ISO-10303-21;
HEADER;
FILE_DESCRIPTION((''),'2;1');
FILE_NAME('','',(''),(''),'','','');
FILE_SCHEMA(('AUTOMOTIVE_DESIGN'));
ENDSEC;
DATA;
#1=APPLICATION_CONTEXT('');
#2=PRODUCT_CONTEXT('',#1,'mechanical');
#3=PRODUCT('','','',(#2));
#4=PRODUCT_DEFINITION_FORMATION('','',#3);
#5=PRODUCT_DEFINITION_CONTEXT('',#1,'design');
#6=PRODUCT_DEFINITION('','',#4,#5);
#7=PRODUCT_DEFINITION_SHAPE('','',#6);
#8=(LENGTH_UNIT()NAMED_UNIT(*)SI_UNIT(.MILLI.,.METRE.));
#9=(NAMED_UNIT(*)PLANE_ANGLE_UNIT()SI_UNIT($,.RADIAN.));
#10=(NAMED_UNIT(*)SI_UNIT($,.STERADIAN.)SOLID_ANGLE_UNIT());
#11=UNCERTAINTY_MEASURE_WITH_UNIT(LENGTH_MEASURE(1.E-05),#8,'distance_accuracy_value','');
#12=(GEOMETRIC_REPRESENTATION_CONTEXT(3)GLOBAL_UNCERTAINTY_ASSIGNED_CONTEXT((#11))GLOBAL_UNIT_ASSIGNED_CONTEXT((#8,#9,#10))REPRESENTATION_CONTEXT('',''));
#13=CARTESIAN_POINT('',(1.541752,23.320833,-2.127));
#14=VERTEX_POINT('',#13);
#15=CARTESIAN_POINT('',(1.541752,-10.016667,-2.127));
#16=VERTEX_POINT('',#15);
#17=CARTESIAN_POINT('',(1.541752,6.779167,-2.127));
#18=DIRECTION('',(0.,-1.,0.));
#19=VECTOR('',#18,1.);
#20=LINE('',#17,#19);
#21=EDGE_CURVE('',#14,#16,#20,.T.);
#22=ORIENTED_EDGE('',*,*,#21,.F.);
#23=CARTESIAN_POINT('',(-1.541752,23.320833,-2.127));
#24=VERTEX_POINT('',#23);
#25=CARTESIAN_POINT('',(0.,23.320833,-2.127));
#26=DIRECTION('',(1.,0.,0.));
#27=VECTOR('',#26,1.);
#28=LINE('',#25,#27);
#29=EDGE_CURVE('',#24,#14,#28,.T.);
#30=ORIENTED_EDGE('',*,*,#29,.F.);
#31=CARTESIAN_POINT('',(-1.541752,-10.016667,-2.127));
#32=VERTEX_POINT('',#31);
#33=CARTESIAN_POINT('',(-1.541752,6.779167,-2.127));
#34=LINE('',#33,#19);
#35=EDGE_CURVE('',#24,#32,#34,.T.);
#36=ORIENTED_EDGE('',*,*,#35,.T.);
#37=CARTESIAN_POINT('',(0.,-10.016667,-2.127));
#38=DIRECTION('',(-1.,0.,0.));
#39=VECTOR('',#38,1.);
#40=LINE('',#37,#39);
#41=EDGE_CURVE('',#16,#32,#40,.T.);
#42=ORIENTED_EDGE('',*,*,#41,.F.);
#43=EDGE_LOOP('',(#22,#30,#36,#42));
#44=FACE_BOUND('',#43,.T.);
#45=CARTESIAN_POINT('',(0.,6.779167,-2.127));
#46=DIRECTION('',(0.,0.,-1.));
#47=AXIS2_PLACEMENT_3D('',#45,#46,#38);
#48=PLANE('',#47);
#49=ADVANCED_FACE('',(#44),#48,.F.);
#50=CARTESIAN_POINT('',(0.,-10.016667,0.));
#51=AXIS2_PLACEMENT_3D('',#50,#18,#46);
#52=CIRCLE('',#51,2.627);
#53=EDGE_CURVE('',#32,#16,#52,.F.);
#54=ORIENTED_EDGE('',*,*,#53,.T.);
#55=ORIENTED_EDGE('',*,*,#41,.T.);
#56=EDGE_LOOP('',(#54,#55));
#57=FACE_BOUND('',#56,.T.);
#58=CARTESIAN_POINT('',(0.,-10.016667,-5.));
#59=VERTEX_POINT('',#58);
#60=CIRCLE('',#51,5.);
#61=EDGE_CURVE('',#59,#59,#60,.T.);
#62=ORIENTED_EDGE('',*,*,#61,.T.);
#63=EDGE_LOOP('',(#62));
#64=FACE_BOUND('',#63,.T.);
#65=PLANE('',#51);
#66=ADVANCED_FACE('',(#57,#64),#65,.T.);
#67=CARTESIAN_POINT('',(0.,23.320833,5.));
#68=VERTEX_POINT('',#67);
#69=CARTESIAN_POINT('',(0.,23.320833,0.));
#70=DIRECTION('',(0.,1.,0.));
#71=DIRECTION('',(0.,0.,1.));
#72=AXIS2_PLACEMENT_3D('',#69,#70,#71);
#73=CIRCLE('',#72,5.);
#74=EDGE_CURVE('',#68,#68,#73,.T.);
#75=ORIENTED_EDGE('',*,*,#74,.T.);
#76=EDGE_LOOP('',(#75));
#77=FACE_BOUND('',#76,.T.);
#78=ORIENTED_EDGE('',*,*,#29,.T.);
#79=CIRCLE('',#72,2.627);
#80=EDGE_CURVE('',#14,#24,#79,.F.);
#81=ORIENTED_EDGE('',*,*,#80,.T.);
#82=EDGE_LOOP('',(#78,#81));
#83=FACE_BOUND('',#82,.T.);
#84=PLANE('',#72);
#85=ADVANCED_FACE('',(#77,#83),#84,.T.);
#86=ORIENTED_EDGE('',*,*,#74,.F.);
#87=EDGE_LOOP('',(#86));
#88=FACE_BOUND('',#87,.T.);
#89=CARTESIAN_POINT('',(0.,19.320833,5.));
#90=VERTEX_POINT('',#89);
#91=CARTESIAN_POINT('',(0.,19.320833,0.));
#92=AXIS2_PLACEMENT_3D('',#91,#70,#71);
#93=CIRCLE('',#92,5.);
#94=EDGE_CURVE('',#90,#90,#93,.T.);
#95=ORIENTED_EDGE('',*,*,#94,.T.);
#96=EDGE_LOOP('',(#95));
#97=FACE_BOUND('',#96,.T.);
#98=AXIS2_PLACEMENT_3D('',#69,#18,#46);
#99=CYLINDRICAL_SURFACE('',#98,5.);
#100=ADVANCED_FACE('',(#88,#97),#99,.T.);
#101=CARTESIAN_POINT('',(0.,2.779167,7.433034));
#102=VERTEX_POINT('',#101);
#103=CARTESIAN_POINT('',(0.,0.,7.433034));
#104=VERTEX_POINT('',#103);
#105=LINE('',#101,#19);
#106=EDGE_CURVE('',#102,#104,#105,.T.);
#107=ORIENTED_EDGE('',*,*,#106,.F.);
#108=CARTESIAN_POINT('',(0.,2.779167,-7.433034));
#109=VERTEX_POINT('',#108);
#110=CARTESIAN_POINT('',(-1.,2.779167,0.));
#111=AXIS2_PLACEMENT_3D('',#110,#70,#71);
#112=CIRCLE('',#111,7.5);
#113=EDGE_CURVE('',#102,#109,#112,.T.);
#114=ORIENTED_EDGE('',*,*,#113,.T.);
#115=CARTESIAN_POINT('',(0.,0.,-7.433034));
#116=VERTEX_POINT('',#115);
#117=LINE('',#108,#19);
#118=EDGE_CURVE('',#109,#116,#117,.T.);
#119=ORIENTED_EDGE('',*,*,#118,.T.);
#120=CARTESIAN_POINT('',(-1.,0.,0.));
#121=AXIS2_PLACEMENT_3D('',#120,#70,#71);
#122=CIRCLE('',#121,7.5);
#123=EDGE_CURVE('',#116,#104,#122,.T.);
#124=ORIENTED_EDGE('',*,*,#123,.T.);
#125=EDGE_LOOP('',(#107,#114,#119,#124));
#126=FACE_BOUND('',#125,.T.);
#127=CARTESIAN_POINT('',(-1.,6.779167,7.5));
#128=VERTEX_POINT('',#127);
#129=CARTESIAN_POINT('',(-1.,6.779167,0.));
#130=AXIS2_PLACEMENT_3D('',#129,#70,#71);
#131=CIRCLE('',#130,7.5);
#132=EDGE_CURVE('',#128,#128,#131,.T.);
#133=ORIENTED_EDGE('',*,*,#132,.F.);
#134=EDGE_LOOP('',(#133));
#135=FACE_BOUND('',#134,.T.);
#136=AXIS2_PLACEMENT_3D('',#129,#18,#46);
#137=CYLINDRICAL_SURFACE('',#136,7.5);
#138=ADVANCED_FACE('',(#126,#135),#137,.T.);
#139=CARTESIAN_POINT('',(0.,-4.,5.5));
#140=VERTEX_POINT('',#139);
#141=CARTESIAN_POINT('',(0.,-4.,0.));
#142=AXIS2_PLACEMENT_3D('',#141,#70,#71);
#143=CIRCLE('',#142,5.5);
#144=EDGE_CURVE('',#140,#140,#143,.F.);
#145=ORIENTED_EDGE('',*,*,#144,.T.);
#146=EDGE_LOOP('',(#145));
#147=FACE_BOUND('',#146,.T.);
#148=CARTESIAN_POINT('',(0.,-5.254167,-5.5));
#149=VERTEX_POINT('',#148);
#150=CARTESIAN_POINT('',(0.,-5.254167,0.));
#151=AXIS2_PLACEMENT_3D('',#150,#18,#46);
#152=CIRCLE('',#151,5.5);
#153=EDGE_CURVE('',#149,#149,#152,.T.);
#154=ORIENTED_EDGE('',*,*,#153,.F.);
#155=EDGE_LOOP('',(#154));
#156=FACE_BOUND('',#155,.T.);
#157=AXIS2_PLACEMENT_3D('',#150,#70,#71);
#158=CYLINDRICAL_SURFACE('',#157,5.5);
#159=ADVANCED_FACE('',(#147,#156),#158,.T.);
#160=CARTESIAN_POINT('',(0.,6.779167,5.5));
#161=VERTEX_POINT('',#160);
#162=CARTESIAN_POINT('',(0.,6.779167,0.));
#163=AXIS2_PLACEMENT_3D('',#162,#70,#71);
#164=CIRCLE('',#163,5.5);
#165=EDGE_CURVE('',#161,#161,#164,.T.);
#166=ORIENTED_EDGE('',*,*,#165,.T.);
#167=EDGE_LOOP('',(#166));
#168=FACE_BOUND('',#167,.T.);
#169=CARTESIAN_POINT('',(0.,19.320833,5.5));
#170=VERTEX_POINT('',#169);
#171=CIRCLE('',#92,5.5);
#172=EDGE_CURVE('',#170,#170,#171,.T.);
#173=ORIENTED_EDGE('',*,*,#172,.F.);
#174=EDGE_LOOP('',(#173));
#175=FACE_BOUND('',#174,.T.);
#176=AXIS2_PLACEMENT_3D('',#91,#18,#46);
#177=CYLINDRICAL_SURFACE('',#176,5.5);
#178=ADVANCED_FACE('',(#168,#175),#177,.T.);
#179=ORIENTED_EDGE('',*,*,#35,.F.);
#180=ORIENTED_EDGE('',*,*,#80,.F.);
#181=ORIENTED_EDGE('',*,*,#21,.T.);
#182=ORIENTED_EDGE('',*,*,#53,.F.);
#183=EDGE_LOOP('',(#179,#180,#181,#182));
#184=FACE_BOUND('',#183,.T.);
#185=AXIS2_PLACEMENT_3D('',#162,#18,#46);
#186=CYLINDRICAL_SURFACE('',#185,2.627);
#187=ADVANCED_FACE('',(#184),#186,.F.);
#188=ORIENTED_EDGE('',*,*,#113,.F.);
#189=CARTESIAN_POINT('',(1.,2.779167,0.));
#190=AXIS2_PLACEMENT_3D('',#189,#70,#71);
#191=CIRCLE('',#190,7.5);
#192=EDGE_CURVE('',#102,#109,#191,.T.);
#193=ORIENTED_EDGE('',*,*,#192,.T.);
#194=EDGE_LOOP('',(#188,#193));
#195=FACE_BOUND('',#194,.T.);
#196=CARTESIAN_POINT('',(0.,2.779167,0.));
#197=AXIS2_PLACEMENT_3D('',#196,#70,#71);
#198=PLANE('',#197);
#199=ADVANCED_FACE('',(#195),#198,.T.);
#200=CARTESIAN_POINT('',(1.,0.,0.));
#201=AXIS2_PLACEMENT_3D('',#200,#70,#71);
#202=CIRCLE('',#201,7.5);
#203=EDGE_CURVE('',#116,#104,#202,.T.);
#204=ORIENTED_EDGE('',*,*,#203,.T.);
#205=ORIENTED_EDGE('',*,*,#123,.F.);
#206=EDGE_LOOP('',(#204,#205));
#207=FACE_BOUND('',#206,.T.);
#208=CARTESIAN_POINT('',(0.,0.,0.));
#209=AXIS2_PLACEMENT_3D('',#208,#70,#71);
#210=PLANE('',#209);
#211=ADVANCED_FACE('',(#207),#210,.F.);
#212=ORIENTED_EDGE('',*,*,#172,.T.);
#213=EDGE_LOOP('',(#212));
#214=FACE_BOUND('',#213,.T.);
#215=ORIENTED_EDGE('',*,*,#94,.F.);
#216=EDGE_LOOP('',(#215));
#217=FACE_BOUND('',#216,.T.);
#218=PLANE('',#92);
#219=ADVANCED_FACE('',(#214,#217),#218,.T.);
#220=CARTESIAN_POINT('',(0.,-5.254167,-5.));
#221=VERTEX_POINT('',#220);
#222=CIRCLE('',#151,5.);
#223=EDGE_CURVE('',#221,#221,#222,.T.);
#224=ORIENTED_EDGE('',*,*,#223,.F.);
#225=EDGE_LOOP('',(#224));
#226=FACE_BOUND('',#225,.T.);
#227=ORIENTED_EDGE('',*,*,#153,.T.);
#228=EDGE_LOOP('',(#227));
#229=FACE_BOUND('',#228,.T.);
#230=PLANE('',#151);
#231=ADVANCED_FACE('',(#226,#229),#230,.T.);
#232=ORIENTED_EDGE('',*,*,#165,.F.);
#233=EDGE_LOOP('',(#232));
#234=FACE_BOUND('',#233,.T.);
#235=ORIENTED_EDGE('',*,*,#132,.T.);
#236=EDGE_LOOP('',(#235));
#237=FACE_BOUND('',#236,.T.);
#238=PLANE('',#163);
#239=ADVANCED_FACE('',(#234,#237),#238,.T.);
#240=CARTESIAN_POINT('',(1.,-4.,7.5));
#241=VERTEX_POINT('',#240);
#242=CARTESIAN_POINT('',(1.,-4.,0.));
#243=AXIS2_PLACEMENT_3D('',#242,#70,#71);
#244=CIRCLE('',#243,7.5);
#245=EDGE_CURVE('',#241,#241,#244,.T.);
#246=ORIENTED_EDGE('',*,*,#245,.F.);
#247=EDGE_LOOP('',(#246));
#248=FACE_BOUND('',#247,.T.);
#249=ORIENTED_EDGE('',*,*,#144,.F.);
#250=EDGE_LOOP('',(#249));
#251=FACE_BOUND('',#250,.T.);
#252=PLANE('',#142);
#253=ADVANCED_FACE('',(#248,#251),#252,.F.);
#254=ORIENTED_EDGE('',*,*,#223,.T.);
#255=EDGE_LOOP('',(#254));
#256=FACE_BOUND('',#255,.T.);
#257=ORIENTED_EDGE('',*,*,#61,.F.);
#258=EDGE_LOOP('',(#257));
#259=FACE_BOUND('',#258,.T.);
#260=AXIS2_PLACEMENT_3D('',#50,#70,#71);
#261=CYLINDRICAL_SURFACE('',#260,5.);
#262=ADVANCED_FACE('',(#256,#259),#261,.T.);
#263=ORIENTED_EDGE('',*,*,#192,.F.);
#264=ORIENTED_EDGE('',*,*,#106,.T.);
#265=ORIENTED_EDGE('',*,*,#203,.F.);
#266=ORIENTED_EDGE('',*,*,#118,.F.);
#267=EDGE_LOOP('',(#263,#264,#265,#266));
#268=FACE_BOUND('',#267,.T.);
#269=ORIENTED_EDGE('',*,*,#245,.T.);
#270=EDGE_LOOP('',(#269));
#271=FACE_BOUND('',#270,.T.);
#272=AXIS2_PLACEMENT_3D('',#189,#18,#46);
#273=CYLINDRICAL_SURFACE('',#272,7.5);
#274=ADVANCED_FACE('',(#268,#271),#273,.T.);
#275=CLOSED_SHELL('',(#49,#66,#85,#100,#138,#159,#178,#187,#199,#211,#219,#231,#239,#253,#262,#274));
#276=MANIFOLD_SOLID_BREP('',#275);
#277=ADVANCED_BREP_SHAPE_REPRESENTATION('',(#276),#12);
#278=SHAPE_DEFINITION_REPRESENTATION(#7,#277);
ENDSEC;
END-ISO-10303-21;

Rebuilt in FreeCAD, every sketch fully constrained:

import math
import FreeCAD as App
import Part
import Sketcher

V = App.Vector

doc = App.newDocument("Part")
body = doc.addObject("PartDesign::Body", "Body")

sketch1 = body.newObject("Sketcher::SketchObject", "Sketch")
sketch1.AttachmentSupport = (doc.getObject("XZ_Plane"), [""])
sketch1.MapMode = "FlatFace"
sketch1.addGeometry([
    Part.Circle(V(-1, 0, 0), V(0, 0, 1), 7.5),
    Part.ArcOfCircle(Part.Circle(V(0, 0, 0), V(0, 0, 1), 2.6), math.radians(-54), math.radians(234)),
    Part.LineSegment(V(-1.5, -2.1, 0), V(1.5, -2.1, 0)),
], False)
sketch1.addConstraint([
    Sketcher.Constraint("Coincident", 1, 1, 2, 2),
    Sketcher.Constraint("Coincident", 2, 1, 1, 2),
    Sketcher.Constraint("Horizontal", 2),
    Sketcher.Constraint("Coincident", 1, 3, -1, 1),
    Sketcher.Constraint("PointOnObject", 0, 3, -1),
    Sketcher.Constraint("Diameter", 0, 15.0),
    Sketcher.Constraint("DistanceX", 0, 3, -1, 1, 1.0),
    Sketcher.Constraint("Radius", 1, 2.627),
    Sketcher.Constraint("DistanceY", 1, 1, -1, 1, 2.127),
])
pad1 = body.newObject("PartDesign::Pad", "Pad")
pad1.Profile = sketch1
pad1.Length = 6.779167
pad1.Reversed = True

sketch2 = body.newObject("Sketcher::SketchObject", "Sketch001")
sketch2.AttachmentSupport = (doc.getObject("XZ_Plane"), [""])
sketch2.MapMode = "FlatFace"
sketch2.addGeometry([
    Part.ArcOfCircle(Part.Circle(V(1, 0, 0), V(0, 0, 1), 8), math.radians(0), math.radians(98)),
    Part.ArcOfCircle(Part.Circle(V(1, 0, 0), V(0, 0, 1), 8), math.radians(-98), math.radians(0)),
    Part.ArcOfCircle(Part.Circle(V(-1, 0, 0), V(0, 0, 1), 8), math.radians(-82), math.radians(0)),
    Part.ArcOfCircle(Part.Circle(V(-1, 0, 0), V(0, 0, 1), 8), math.radians(0), math.radians(82)),
], False)
sketch2.addConstraint([
    Sketcher.Constraint("Tangent", 0, 1, 1, 2),
    Sketcher.Constraint("Coincident", 1, 1, 2, 1),
    Sketcher.Constraint("Tangent", 2, 2, 3, 1),
    Sketcher.Constraint("Coincident", 3, 2, 0, 2),
    Sketcher.Constraint("Equal", 0, 1),
    Sketcher.Constraint("Equal", 1, 2),
    Sketcher.Constraint("Equal", 2, 3),
    Sketcher.Constraint("Symmetric", 0, 3, 2, 3, -1, 1),
    Sketcher.Constraint("PointOnObject", 0, 3, -1),
    Sketcher.Constraint("PointOnObject", 0, 1, -1),
    Sketcher.Constraint("PointOnObject", 2, 2, -1),
    Sketcher.Constraint("Radius", 0, 7.5),
    Sketcher.Constraint("DistanceX", -1, 1, 0, 3, 1.0),
])
pad2 = body.newObject("PartDesign::Pad", "Pad001")
pad2.Profile = sketch2
pad2.Length = 2.779167
pad2.Reversed = True

sketch3 = body.newObject("Sketcher::SketchObject", "Sketch002")
sketch3.AttachmentSupport = (doc.getObject("XZ_Plane"), [""])
sketch3.MapMode = "FlatFace"
sketch3.AttachmentOffset = App.Placement(V(0, 0, 4), App.Rotation())
sketch3.addGeometry([
    Part.Circle(V(1, 0, 0), V(0, 0, 1), 7.5),
    Part.ArcOfCircle(Part.Circle(V(0, 0, 0), V(0, 0, 1), 2.6), math.radians(-54), math.radians(234)),
    Part.LineSegment(V(-1.5, -2.1, 0), V(1.5, -2.1, 0)),
], False)
sketch3.addConstraint([
    Sketcher.Constraint("Coincident", 1, 1, 2, 2),
    Sketcher.Constraint("Coincident", 2, 1, 1, 2),
    Sketcher.Constraint("Horizontal", 2),
    Sketcher.Constraint("Coincident", 1, 3, -1, 1),
    Sketcher.Constraint("PointOnObject", 0, 3, -1),
    Sketcher.Constraint("Diameter", 0, 15.0),
    Sketcher.Constraint("DistanceX", -1, 1, 0, 3, 1.0),
    Sketcher.Constraint("Radius", 1, 2.627),
    Sketcher.Constraint("DistanceY", 1, 1, -1, 1, 2.127),
])
pad3 = body.newObject("PartDesign::Pad", "Pad002")
pad3.Profile = sketch3
pad3.Length = 4
pad3.Reversed = True

sketch4 = body.newObject("Sketcher::SketchObject", "Sketch003")
sketch4.AttachmentSupport = (doc.getObject("XZ_Plane"), [""])
sketch4.MapMode = "FlatFace"
sketch4.AttachmentOffset = App.Placement(V(0, 0, 10.016667), App.Rotation())
sketch4.addGeometry([
    Part.Circle(V(0, 0, 0), V(0, 0, 1), 5),
    Part.LineSegment(V(1.5, -2.1, 0), V(-1.5, -2.1, 0)),
    Part.ArcOfCircle(Part.Circle(V(0, 0, 0), V(0, 0, 1), 2.6), math.radians(-54), math.radians(234)),
], False)
sketch4.addConstraint([
    Sketcher.Constraint("Coincident", 1, 1, 2, 1),
    Sketcher.Constraint("Coincident", 2, 2, 1, 2),
    Sketcher.Constraint("Horizontal", 1),
    Sketcher.Constraint("Coincident", 0, 3, -1, 1),
    Sketcher.Constraint("Coincident", 2, 3, -1, 1),
    Sketcher.Constraint("Diameter", 0, 10.0),
    Sketcher.Constraint("Radius", 2, 2.627),
    Sketcher.Constraint("DistanceY", 1, 1, -1, 1, 2.127),
])
pad4 = body.newObject("PartDesign::Pad", "Pad003")
pad4.Profile = sketch4
pad4.Length = 6.016667
pad4.Reversed = True

sketch5 = body.newObject("Sketcher::SketchObject", "Sketch004")
sketch5.AttachmentSupport = (doc.getObject("XZ_Plane"), [""])
sketch5.MapMode = "FlatFace"
sketch5.AttachmentOffset = App.Placement(V(0, 0, 5.254167), App.Rotation())
sketch5.addGeometry([
    Part.Circle(V(0, 0, 0), V(0, 0, 1), 6),
    Part.Circle(V(0, 0, 0), V(0, 0, 1), 5),
], False)
sketch5.addConstraint([
    Sketcher.Constraint("Coincident", 0, 3, -1, 1),
    Sketcher.Constraint("Coincident", 1, 3, -1, 1),
    Sketcher.Constraint("Diameter", 0, 11.0),
    Sketcher.Constraint("Diameter", 1, 10.0),
])
pad5 = body.newObject("PartDesign::Pad", "Pad004")
pad5.Profile = sketch5
pad5.Length = 1.254167
pad5.Reversed = True

sketch6 = body.newObject("Sketcher::SketchObject", "Sketch005")
sketch6.AttachmentSupport = (doc.getObject("XZ_Plane"), [""])
sketch6.MapMode = "FlatFace"
sketch6.AttachmentOffset = App.Placement(V(0, 0, -6.779167), App.Rotation())
sketch6.addGeometry([
    Part.Circle(V(0, 0, 0), V(0, 0, 1), 5),
    Part.ArcOfCircle(Part.Circle(V(0, 0, 0), V(0, 0, 1), 2.6), math.radians(-54), math.radians(234)),
    Part.LineSegment(V(-1.5, -2.1, 0), V(1.5, -2.1, 0)),
], False)
sketch6.addConstraint([
    Sketcher.Constraint("Coincident", 1, 1, 2, 2),
    Sketcher.Constraint("Coincident", 2, 1, 1, 2),
    Sketcher.Constraint("Horizontal", 2),
    Sketcher.Constraint("Coincident", 0, 3, -1, 1),
    Sketcher.Constraint("Coincident", 1, 3, -1, 1),
    Sketcher.Constraint("Diameter", 0, 10.0),
    Sketcher.Constraint("Radius", 1, 2.627),
    Sketcher.Constraint("DistanceY", 1, 1, -1, 1, 2.127),
])
pad6 = body.newObject("PartDesign::Pad", "Pad005")
pad6.Profile = sketch6
pad6.Length = 16.541667
pad6.Reversed = True

sketch7 = body.newObject("Sketcher::SketchObject", "Sketch006")
sketch7.AttachmentSupport = (doc.getObject("XZ_Plane"), [""])
sketch7.MapMode = "FlatFace"
sketch7.AttachmentOffset = App.Placement(V(0, 0, -6.779167), App.Rotation())
sketch7.addGeometry([
    Part.Circle(V(0, 0, 0), V(0, 0, 1), 6),
    Part.Circle(V(0, 0, 0), V(0, 0, 1), 5),
], False)
sketch7.addConstraint([
    Sketcher.Constraint("Coincident", 0, 3, -1, 1),
    Sketcher.Constraint("Coincident", 1, 3, -1, 1),
    Sketcher.Constraint("Diameter", 0, 11.0),
    Sketcher.Constraint("Diameter", 1, 10.0),
])
pad7 = body.newObject("PartDesign::Pad", "Pad006")
pad7.Profile = sketch7
pad7.Length = 12.541667
pad7.Reversed = True

doc.recompute()
